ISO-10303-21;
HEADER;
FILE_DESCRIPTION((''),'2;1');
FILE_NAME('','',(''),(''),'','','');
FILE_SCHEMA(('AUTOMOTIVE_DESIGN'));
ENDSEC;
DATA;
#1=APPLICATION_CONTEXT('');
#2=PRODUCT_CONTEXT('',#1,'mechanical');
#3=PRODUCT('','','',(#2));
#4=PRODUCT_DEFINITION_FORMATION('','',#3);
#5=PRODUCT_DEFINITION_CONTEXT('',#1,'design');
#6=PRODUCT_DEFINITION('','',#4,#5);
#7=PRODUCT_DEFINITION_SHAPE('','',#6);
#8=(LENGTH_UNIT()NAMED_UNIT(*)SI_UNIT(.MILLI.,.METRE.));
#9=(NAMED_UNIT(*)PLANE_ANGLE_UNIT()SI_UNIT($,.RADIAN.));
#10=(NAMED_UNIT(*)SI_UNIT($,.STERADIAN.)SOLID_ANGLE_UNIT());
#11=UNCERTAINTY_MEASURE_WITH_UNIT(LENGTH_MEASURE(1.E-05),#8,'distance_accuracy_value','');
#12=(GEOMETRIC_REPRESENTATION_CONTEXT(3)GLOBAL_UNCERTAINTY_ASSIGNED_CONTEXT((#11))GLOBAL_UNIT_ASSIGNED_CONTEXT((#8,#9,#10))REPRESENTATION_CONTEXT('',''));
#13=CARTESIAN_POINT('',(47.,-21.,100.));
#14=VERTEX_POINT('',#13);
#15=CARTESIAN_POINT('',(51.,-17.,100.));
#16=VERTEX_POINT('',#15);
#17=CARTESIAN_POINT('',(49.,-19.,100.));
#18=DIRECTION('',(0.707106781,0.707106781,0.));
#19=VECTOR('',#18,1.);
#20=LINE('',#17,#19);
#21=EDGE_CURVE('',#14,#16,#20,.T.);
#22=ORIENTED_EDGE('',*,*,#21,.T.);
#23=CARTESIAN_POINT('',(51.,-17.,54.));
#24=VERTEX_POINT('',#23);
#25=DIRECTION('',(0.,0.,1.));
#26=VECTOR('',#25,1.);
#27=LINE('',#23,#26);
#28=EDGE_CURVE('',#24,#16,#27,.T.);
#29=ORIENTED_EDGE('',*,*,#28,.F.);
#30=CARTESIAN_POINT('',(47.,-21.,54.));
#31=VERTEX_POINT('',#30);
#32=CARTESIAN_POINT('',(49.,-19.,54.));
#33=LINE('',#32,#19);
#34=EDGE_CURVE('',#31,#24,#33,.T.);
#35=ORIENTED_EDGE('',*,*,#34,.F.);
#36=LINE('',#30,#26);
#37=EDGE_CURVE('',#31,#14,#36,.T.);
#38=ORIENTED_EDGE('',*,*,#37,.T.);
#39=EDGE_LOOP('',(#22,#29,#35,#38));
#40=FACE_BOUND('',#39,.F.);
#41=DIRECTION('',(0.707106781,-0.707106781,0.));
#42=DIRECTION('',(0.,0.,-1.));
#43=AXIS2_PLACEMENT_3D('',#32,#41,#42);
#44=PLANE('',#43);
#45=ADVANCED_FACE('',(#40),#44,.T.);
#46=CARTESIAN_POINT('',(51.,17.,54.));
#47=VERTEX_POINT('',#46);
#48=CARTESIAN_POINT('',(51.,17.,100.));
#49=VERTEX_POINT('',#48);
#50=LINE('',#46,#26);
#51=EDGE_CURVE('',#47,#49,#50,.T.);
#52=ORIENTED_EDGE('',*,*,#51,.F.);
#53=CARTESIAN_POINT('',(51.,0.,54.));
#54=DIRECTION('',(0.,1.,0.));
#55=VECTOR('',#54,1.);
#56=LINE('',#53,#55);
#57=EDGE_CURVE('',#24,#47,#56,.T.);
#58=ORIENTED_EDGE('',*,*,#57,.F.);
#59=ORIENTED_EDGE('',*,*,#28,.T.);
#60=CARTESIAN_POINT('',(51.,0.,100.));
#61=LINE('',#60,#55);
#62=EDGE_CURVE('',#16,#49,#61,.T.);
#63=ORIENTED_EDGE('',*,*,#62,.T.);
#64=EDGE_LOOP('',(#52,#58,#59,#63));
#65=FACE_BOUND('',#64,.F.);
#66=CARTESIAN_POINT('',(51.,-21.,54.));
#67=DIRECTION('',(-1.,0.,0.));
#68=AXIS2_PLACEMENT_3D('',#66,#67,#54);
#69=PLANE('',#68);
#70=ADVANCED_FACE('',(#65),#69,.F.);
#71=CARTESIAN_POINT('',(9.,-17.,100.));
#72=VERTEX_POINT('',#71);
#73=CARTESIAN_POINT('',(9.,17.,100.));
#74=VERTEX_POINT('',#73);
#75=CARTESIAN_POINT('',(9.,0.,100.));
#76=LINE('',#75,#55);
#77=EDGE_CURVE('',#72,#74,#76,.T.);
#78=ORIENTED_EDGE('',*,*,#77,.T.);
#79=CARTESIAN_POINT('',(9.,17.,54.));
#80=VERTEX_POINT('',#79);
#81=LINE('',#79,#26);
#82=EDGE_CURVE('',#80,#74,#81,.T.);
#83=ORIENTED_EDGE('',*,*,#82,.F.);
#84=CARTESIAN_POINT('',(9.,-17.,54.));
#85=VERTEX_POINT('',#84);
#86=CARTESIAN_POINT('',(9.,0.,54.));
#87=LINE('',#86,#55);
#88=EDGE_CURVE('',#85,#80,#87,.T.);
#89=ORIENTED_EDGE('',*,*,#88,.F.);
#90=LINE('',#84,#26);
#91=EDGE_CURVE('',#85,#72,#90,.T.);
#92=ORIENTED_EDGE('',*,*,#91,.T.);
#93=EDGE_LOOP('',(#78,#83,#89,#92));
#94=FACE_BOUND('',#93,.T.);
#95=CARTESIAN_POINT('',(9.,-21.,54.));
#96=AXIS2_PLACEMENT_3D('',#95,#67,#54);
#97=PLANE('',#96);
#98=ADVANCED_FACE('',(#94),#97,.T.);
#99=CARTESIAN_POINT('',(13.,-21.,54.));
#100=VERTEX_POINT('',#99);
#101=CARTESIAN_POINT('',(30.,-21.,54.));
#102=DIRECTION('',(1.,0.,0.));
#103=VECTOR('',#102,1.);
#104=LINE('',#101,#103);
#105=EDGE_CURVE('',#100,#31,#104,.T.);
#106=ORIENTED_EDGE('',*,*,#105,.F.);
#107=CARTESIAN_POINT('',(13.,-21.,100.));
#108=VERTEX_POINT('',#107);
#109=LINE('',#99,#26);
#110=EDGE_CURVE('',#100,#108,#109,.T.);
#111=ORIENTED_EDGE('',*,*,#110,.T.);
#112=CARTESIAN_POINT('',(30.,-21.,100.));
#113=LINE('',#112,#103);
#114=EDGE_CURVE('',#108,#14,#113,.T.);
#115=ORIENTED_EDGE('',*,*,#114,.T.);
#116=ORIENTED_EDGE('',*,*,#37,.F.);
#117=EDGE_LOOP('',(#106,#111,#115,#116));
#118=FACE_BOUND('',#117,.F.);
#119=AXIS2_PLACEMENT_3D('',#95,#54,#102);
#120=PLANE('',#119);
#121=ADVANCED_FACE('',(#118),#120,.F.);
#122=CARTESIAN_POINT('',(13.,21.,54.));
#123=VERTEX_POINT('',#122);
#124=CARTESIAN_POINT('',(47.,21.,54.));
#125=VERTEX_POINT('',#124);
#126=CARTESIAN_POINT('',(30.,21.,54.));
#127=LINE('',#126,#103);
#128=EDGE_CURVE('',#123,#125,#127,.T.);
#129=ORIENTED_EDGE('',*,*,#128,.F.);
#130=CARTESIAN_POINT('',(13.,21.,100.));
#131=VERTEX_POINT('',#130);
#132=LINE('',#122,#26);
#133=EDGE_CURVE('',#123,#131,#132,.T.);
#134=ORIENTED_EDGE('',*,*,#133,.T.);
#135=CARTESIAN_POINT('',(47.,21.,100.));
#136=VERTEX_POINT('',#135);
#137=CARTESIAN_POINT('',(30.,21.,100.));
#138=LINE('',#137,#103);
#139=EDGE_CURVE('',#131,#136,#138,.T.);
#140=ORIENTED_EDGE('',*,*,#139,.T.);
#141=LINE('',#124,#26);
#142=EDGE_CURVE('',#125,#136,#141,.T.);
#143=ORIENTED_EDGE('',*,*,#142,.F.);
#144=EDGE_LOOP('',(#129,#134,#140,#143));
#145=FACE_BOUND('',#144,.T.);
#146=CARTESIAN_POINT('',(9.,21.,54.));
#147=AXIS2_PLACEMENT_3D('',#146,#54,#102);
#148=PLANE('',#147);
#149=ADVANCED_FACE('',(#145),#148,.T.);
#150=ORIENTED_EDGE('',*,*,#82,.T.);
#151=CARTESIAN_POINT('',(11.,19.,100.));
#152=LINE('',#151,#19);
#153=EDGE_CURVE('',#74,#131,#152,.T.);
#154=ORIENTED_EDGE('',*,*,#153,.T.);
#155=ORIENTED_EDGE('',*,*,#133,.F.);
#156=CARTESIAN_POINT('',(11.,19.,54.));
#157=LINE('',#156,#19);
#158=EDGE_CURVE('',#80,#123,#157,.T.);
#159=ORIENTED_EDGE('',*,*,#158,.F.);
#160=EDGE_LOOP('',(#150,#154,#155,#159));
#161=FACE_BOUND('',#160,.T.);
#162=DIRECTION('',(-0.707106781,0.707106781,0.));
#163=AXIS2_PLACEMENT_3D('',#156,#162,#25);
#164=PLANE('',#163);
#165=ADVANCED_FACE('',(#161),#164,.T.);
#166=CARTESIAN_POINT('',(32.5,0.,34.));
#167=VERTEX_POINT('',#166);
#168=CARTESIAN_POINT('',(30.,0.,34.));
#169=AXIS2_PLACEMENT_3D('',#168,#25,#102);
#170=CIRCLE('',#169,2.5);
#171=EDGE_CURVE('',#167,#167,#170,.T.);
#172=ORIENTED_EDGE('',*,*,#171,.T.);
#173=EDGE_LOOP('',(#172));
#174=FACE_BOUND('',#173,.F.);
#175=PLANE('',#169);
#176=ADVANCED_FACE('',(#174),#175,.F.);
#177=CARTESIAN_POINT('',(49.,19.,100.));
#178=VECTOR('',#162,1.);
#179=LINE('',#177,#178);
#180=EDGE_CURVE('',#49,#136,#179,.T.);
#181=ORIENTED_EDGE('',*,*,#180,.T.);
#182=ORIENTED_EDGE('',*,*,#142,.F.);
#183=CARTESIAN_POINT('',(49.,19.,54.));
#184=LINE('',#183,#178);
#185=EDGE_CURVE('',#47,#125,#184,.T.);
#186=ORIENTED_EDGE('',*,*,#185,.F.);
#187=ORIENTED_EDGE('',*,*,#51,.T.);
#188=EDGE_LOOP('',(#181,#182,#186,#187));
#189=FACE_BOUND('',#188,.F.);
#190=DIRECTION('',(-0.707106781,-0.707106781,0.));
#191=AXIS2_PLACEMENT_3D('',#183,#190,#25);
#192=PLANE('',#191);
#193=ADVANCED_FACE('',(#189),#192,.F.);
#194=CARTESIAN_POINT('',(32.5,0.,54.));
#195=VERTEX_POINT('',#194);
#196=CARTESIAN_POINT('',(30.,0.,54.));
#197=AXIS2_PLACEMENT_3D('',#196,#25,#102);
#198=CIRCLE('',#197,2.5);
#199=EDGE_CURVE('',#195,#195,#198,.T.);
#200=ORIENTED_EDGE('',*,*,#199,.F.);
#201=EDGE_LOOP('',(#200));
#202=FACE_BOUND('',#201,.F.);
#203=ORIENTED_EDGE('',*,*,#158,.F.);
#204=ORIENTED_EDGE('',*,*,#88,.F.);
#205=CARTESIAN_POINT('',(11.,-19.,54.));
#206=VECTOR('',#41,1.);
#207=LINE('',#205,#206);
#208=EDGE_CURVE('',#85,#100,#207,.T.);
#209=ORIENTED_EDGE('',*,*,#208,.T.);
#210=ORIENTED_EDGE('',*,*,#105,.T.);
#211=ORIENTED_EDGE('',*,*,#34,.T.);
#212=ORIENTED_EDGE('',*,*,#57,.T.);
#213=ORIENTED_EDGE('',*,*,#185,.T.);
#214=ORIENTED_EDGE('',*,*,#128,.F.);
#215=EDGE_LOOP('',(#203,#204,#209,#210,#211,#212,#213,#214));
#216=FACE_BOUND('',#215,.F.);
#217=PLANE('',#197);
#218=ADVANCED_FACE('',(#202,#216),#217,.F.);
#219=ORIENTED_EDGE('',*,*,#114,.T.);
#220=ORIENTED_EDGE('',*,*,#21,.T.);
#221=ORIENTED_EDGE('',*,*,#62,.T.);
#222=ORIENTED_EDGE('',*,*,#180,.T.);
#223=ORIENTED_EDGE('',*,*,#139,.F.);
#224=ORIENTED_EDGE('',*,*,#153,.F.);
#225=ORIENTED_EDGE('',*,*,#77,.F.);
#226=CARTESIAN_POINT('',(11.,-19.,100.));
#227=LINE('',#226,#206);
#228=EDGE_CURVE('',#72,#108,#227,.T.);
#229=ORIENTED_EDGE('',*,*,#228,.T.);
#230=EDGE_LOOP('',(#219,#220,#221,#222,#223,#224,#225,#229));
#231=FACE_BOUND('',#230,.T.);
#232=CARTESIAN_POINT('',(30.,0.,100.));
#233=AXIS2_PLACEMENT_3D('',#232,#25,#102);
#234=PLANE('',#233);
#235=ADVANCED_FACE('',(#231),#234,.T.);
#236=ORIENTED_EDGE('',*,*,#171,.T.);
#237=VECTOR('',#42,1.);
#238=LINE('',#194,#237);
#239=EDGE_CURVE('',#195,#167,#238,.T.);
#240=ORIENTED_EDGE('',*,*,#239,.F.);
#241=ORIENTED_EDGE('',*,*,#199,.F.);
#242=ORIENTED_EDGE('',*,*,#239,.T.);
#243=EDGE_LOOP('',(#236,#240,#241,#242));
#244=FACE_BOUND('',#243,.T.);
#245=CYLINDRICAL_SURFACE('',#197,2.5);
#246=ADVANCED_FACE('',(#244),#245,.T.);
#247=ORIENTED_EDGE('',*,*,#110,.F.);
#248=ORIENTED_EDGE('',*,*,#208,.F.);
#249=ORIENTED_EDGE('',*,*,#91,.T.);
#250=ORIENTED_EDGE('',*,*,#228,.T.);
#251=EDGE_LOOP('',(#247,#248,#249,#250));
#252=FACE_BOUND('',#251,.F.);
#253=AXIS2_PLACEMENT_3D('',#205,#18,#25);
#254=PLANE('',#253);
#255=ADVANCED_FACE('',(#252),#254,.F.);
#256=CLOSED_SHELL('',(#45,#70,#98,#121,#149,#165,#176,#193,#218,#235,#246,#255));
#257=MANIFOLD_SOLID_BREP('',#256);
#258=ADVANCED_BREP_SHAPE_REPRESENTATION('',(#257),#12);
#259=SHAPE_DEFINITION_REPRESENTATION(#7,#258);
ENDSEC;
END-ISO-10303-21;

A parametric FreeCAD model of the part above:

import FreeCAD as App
import Part
import Sketcher
from FreeCAD import Vector


def edges_at(feature, points):
    """Names of the edges that pass closest to the given points."""
    edges = feature.Shape.Edges
    near = lambda p: min(range(len(edges)), key=lambda i: edges[i].distToShape(Part.Vertex(*p))[0])
    return sorted({f"Edge{near(p) + 1}" for p in points})


def add_polygon(sketch, points):
    """Adds a closed chain of lines whose ends are joined by coincident constraints."""
    first, n = sketch.GeometryCount, len(points)
    for a, b in zip(points, points[1:] + points[:1]):
        sketch.addGeometry(Part.LineSegment(App.Vector(*a, 0), App.Vector(*b, 0)), False)
    for i in range(n):
        sketch.addConstraint(Sketcher.Constraint("Coincident", first + i, 2, first + (i + 1) % n, 1))

doc = App.newDocument("Part")
body = doc.addObject("PartDesign::Body", "Body")

# Sketch on XY plane
sketch1 = doc.addObject("Sketcher::SketchObject", "Sketch")
body.addObject(sketch1)
sketch1.AttachmentSupport = (doc.XY_Plane, [""])
sketch1.MapMode = "FlatFace"
add_polygon(sketch1, [(-21, 21), (-21, -21), (21, -21), (21, 21)])  # lines 0-3
sketch1.addConstraint([
    Sketcher.Constraint("Vertical", 0),
    Sketcher.Constraint("Horizontal", 1),
    Sketcher.Constraint("Vertical", 2),
    Sketcher.Constraint("Horizontal", 3),
    Sketcher.Constraint("Symmetric", 0, 2, 2, 2, -1, 1),
    Sketcher.Constraint("Equal", 3, 0),
    Sketcher.Constraint("DistanceX", 1, 1, 1, 2, 42.0),
])
pad1 = doc.addObject("PartDesign::Pad", "Pad")
body.addObject(pad1)
pad1.Profile = sketch1
pad1.Length = 46
doc.recompute()

chamfer = doc.addObject("PartDesign::Chamfer", "Chamfer")
body.addObject(chamfer)
chamfer.Base = (pad1, edges_at(pad1, [
    (-21, 21, 23),
    (-21, -21, 23),
    (21, -21, 23),
    (21, 21, 23),
]))
chamfer.Size = 4

# Sketch on XY plane
sketch2 = doc.addObject("Sketcher::SketchObject", "Sketch001")
body.addObject(sketch2)
sketch2.AttachmentSupport = (doc.XY_Plane, [""])
sketch2.MapMode = "FlatFace"
sketch2.addGeometry(Part.Circle(Vector(0, 0, 0), Vector(0, 0, 1), 2.5), False)
sketch2.addConstraint([
    Sketcher.Constraint("Coincident", 0, 3, -1, 1),
    Sketcher.Constraint("Diameter", 0, 5.0),
])
pad2 = doc.addObject("PartDesign::Pad", "Pad001")
body.addObject(pad2)
pad2.Profile = sketch2
pad2.Length = 20
pad2.Reversed = True
body2 = doc.addObject("PartDesign::Body", "Body001")
doc.recompute()

body.Placement = App.Placement(Vector(30, 0, 54), App.Rotation(Vector(0, 0, 1), 0))
boolean = doc.addObject("PartDesign::Boolean", "Boolean")
body2.addObject(boolean)
boolean.Type = "Fuse"
boolean.addObjects([body])

doc.recompute()
